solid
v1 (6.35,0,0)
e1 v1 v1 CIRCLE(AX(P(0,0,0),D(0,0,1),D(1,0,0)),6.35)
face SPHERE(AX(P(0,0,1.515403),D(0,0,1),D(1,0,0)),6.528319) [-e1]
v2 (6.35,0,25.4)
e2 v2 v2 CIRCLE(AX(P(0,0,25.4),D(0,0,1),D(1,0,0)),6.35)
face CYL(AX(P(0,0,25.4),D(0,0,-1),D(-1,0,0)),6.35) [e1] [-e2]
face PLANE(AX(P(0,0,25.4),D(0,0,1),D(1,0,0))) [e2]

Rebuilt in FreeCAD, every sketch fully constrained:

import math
import FreeCAD as App
import Part
import Sketcher
Q = App.Units.Quantity

doc = App.newDocument("Part")
body = doc.addObject("PartDesign::Body", "Body")

sketch1 = body.newObject("Sketcher::SketchObject", "Sketch")
sketch1.AttachmentSupport = (doc.getObject("XY_Plane"), [""])
sketch1.MapMode = "FlatFace"
sketch1.addGeometry(Part.Circle(App.Vector(0, 0, 0), App.Vector(0, 0, 1), 6.35), False)
sketch1.addConstraint([
    Sketcher.Constraint("Coincident", 0, 3, -1, 1),
    Sketcher.Constraint("Diameter", 0, Q("0.5 in")),
])
pad1 = body.newObject("PartDesign::Pad", "Pad")
pad1.Profile = sketch1
pad1.Length = Q("1 in")

sketch2 = body.newObject("Sketcher::SketchObject", "Sketch001")
sketch2.AttachmentSupport = (doc.getObject("XZ_Plane"), [""])
sketch2.MapMode = "FlatFace"
sketch2.addGeometry([
    Part.LineSegment(App.Vector(0, -5.012916, 0), App.Vector(0, 0, 0)),
    Part.LineSegment(App.Vector(0, 0, 0), App.Vector(6.35, 0, 0)),
    Part.ArcOfCircle(Part.Circle(App.Vector(0, 1.515403, 0), App.Vector(0, 0, 1), 6.528319), math.radians(-90), math.radians(-13.422363)),
], False)
sketch2.addConstraint([
    Sketcher.Constraint("Coincident", 0, 2, 1, 1),
    Sketcher.Constraint("Coincident", 1, 2, 2, 2),
    Sketcher.Constraint("Coincident", 2, 1, 0, 1),
    Sketcher.Constraint("Vertical", 0),
    Sketcher.Constraint("Horizontal", 1),
    Sketcher.Constraint("Coincident", 0, 2, -1, 1),
    Sketcher.Constraint("PointOnObject", 2, 3, -2),
    Sketcher.Constraint("DistanceX", 1, 1, 1, 2, Q("0.25 in")),
    Sketcher.Constraint("Radius", 2, 6.528319),
])
revolution = body.newObject("PartDesign::Revolution", "Revolution")
revolution.Profile = sketch2
revolution.ReferenceAxis = (sketch2, ["V_Axis"])
revolution.Angle = 360

doc.recompute()
